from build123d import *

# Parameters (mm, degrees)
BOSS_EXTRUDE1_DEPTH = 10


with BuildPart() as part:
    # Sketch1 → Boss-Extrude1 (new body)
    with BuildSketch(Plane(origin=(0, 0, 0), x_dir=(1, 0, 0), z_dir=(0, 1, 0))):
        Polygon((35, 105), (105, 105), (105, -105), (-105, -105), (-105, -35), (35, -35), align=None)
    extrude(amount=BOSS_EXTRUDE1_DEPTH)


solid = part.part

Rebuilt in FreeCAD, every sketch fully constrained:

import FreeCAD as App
import Part
import Sketcher

V = App.Vector


def add_polygon(sketch, points):
    """Adds a closed chain of lines whose ends are joined by coincident constraints."""
    first, n = sketch.GeometryCount, len(points)
    for a, b in zip(points, points[1:] + points[:1]):
        sketch.addGeometry(Part.LineSegment(App.Vector(*a, 0), App.Vector(*b, 0)), False)
    for i in range(n):
        sketch.addConstraint(Sketcher.Constraint("Coincident", first + i, 2, first + (i + 1) % n, 1))

doc = App.newDocument("Part")
body = doc.addObject("PartDesign::Body", "Body")

sketch1 = doc.addObject("Sketcher::SketchObject", "Sketch")
body.addObject(sketch1)
sketch1.AttachmentSupport = (doc.XZ_Plane, [""])
sketch1.MapMode = "FlatFace"
add_polygon(sketch1, [(105, -105), (35, -105), (35, 35), (-105, 35), (-105, 105), (105, 105)])
sketch1.addConstraint([
    Sketcher.Constraint("Horizontal", 0),
    Sketcher.Constraint("Vertical", 1),
    Sketcher.Constraint("Horizontal", 2),
    Sketcher.Constraint("Vertical", 3),
    Sketcher.Constraint("Horizontal", 4),
    Sketcher.Constraint("Vertical", 5),
    Sketcher.Constraint("Symmetric", 3, 2, 5, 2, -1, 1),
    Sketcher.Constraint("Equal", 2, 1),
    Sketcher.Constraint("Equal", 0, 3),
    Sketcher.Constraint("DistanceX", 0, 2, 0, 1, 70.0),
    Sketcher.Constraint("DistanceX", 2, 2, 2, 1, 140.0),
])
pad1 = doc.addObject("PartDesign::Pad", "Pad")
body.addObject(pad1)
pad1.Profile = sketch1
pad1.Length = 10
pad1.Reversed = True

doc.recompute()
